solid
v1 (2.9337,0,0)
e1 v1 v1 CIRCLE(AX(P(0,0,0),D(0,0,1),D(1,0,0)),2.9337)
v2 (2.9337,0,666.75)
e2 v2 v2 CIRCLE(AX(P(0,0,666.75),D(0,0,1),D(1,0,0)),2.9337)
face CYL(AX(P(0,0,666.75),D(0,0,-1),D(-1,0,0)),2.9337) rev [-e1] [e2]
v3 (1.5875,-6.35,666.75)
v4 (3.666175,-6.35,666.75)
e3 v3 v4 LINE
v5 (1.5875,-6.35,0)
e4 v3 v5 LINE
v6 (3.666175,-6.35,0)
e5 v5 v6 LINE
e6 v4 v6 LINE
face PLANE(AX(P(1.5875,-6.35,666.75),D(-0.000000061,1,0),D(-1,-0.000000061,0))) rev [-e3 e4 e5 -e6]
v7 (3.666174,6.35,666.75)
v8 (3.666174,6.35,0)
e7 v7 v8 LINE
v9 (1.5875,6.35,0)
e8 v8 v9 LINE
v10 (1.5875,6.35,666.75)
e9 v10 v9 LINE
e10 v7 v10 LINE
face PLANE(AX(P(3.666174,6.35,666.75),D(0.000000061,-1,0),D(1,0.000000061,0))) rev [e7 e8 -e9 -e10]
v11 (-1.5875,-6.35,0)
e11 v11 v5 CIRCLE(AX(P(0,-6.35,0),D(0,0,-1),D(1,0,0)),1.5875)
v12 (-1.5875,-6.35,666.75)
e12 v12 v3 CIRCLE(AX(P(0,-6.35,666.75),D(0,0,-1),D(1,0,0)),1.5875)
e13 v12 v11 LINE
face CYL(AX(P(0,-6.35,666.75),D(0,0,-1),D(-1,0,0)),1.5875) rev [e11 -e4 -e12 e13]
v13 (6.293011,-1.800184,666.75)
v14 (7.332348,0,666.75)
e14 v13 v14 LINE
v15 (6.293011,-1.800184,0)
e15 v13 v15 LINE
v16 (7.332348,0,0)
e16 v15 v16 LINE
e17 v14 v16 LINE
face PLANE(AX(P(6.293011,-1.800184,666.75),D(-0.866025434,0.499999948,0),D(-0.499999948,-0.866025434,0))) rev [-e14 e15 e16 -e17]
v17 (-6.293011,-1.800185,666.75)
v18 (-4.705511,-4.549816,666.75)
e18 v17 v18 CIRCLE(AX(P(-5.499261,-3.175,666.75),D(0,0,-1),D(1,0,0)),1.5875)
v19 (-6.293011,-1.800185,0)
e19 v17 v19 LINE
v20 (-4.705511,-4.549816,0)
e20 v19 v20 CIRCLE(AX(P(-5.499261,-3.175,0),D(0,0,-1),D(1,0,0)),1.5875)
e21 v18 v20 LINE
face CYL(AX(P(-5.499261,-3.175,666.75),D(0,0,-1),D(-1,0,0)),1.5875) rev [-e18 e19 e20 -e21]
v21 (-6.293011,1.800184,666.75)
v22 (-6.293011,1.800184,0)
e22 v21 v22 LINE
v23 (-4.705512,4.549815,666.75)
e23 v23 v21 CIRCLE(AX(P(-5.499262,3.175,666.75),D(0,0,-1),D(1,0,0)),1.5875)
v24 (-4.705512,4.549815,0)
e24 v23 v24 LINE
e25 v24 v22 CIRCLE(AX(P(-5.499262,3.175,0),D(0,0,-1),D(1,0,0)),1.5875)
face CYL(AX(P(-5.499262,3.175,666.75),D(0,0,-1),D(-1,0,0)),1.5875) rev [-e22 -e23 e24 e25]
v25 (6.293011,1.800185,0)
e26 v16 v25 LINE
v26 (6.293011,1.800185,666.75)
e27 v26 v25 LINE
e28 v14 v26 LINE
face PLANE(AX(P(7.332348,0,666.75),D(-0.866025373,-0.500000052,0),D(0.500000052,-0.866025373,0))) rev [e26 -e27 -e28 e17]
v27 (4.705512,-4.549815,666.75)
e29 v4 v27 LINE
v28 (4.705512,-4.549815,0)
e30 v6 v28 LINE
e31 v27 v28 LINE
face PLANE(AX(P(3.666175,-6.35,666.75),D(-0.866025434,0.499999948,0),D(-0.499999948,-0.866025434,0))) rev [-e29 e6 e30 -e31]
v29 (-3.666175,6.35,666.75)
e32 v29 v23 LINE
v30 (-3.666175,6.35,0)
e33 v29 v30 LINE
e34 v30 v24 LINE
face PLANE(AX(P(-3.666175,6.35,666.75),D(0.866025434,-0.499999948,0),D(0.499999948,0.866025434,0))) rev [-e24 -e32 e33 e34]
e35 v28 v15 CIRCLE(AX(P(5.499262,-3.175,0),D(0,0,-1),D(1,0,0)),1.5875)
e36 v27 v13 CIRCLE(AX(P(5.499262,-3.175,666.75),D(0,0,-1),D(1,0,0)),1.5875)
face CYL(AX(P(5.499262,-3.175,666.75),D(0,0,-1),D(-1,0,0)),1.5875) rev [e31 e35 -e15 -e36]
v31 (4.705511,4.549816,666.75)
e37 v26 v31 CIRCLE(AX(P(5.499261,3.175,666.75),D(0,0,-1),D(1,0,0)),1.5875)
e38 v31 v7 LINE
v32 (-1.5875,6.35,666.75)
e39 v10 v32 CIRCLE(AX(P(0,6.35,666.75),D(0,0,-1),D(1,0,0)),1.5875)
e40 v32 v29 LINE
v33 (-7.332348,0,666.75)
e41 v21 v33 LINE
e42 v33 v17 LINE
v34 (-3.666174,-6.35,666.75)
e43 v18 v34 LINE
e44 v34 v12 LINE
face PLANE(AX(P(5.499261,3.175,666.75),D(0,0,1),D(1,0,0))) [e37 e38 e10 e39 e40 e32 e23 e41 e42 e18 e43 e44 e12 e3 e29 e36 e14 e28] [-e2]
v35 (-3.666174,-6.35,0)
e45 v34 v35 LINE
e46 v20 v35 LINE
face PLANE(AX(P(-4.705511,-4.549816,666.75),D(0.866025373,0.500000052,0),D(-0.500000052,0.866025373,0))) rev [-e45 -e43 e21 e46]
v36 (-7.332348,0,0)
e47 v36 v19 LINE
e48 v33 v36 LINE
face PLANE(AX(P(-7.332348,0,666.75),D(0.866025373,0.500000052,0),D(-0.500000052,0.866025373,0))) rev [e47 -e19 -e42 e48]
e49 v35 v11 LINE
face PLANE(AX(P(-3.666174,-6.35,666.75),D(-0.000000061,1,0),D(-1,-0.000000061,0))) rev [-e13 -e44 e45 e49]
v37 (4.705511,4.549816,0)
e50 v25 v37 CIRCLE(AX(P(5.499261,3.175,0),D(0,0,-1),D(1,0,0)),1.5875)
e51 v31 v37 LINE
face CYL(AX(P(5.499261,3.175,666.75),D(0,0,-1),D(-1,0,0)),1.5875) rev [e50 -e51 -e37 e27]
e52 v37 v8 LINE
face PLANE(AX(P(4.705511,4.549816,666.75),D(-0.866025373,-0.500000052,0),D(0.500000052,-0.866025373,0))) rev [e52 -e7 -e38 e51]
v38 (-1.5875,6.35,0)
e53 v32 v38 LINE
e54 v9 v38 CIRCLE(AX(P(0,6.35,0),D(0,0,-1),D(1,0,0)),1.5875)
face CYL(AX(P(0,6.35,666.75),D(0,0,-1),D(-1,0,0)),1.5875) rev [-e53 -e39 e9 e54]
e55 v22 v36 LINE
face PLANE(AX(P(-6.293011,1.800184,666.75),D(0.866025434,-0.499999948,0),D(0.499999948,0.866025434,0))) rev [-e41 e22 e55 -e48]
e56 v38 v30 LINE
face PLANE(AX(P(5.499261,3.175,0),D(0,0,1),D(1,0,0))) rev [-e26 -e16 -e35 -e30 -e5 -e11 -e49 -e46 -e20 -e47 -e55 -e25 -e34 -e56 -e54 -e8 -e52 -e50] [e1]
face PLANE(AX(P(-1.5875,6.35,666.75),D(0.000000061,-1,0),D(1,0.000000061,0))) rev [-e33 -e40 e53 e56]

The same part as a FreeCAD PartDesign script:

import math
import FreeCAD as App
import Part
import Sketcher
Q = App.Units.Quantity

doc = App.newDocument("Part")
body = doc.addObject("PartDesign::Body", "Body")

# Sketch on XY plane
sketch1 = doc.addObject("Sketcher::SketchObject", "Sketch")
body.addObject(sketch1)
sketch1.AttachmentSupport = (doc.XY_Plane, [""])
sketch1.MapMode = "FlatFace"
sketch1.addGeometry(Part.LineSegment(App.Vector(-1.6, 6.3, 0), App.Vector(-3.7, 6.3, 0)), False)
sketch1.addGeometry(Part.LineSegment(App.Vector(-3.7, 6.3, 0), App.Vector(-4.7, 4.5, 0)), False)
sketch1.addGeometry(Part.ArcOfCircle(Part.Circle(App.Vector(-5.5, 3.2, 0), App.Vector(0, 0, 1), 1.6), math.radians(-120), math.radians(60)), False)
sketch1.addGeometry(Part.LineSegment(App.Vector(-6.3, 1.8, 0), App.Vector(-7.3, 0, 0)), False)
sketch1.addGeometry(Part.LineSegment(App.Vector(-7.3, 0, 0), App.Vector(-6.3, -1.8, 0)), False)
sketch1.addGeometry(Part.ArcOfCircle(Part.Circle(App.Vector(-5.5, -3.2, 0), App.Vector(0, 0, 1), 1.6), math.radians(-60), math.radians(120)), False)
sketch1.addGeometry(Part.LineSegment(App.Vector(-4.7, -4.5, 0), App.Vector(-3.7, -6.4, 0)), False)
sketch1.addGeometry(Part.LineSegment(App.Vector(-3.7, -6.4, 0), App.Vector(-1.6, -6.4, 0)), False)
sketch1.addGeometry(Part.ArcOfCircle(Part.Circle(App.Vector(0, -6.3, 0), App.Vector(0, 0, 1), 1.6), math.radians(0), math.radians(180)), False)
sketch1.addGeometry(Part.LineSegment(App.Vector(1.6, -6.3, 0), App.Vector(3.7, -6.3, 0)), False)
sketch1.addGeometry(Part.LineSegment(App.Vector(3.7, -6.3, 0), App.Vector(4.7, -4.5, 0)), False)
sketch1.addGeometry(Part.ArcOfCircle(Part.Circle(App.Vector(5.5, -3.2, 0), App.Vector(0, 0, 1), 1.6), math.radians(60), math.radians(240)), False)
sketch1.addGeometry(Part.LineSegment(App.Vector(6.3, -1.8, 0), App.Vector(7.3, 0, 0)), False)
sketch1.addGeometry(Part.LineSegment(App.Vector(7.3, 0, 0), App.Vector(6.3, 1.8, 0)), False)
sketch1.addGeometry(Part.ArcOfCircle(Part.Circle(App.Vector(5.5, 3.2, 0), App.Vector(0, 0, 1), 1.6), math.radians(120), math.radians(300)), False)
sketch1.addGeometry(Part.LineSegment(App.Vector(4.7, 4.5, 0), App.Vector(3.7, 6.4, 0)), False)
sketch1.addGeometry(Part.LineSegment(App.Vector(3.7, 6.4, 0), App.Vector(1.6, 6.4, 0)), False)
sketch1.addGeometry(Part.ArcOfCircle(Part.Circle(App.Vector(0, 6.3, 0), App.Vector(0, 0, 1), 1.6), math.radians(-180), math.radians(0)), False)
sketch1.addGeometry(Part.Circle(App.Vector(0, 0, 0), App.Vector(0, 0, 1), 2.9), False)
sketch1.addConstraint(Sketcher.Constraint("Coincident", 0, 2, 1, 1))
sketch1.addConstraint(Sketcher.Constraint("Coincident", 1, 2, 2, 2))
sketch1.addConstraint(Sketcher.Constraint("Coincident", 2, 1, 3, 1))
sketch1.addConstraint(Sketcher.Constraint("Coincident", 3, 2, 4, 1))
sketch1.addConstraint(Sketcher.Constraint("Coincident", 4, 2, 5, 2))
sketch1.addConstraint(Sketcher.Constraint("Coincident", 5, 1, 6, 1))
sketch1.addConstraint(Sketcher.Constraint("Coincident", 6, 2, 7, 1))
sketch1.addConstraint(Sketcher.Constraint("Coincident", 7, 2, 8, 2))
sketch1.addConstraint(Sketcher.Constraint("Coincident", 8, 1, 9, 1))
sketch1.addConstraint(Sketcher.Constraint("Coincident", 9, 2, 10, 1))
sketch1.addConstraint(Sketcher.Constraint("Coincident", 10, 2, 11, 2))
sketch1.addConstraint(Sketcher.Constraint("Coincident", 11, 1, 12, 1))
sketch1.addConstraint(Sketcher.Constraint("Coincident", 12, 2, 13, 1))
sketch1.addConstraint(Sketcher.Constraint("Coincident", 13, 2, 14, 2))
sketch1.addConstraint(Sketcher.Constraint("Coincident", 14, 1, 15, 1))
sketch1.addConstraint(Sketcher.Constraint("Coincident", 15, 2, 16, 1))
sketch1.addConstraint(Sketcher.Constraint("Coincident", 16, 2, 17, 2))
sketch1.addConstraint(Sketcher.Constraint("Coincident", 17, 1, 0, 1))
sketch1.addConstraint(Sketcher.Constraint("Horizontal", 0))
sketch1.addConstraint(Sketcher.Constraint("Horizontal", 7))
sketch1.addConstraint(Sketcher.Constraint("Horizontal", 9))
sketch1.addConstraint(Sketcher.Constraint("Horizontal", 16))
sketch1.addConstraint(Sketcher.Constraint("Coincident", 18, 3, -1, 1))
sketch1.addConstraint(Sketcher.Constraint("Equal", 2, 5))
sketch1.addConstraint(Sketcher.Constraint("Equal", 5, 8))
sketch1.addConstraint(Sketcher.Constraint("Equal", 8, 11))
sketch1.addConstraint(Sketcher.Constraint("Equal", 11, 14))
sketch1.addConstraint(Sketcher.Constraint("Equal", 14, 17))
sketch1.addConstraint(Sketcher.Constraint("Symmetric", 2, 3, 11, 3, -1, 1))
sketch1.addConstraint(Sketcher.Constraint("Symmetric", 5, 3, 14, 3, -1, 1))
sketch1.addConstraint(Sketcher.Constraint("Symmetric", 8, 3, 17, 3, -1, 1))
sketch1.addConstraint(Sketcher.Constraint("Symmetric", 0, 2, 9, 2, -1, 1))
sketch1.addConstraint(Sketcher.Constraint("Symmetric", 3, 2, 12, 2, -1, 1))
sketch1.addConstraint(Sketcher.Constraint("Symmetric", 6, 2, 15, 2, -1, 1))
sketch1.addConstraint(Sketcher.Constraint("Symmetric", 5, 3, 11, 3, -2))
sketch1.addConstraint(Sketcher.Constraint("Symmetric", 7, 2, 8, 1, -2))
sketch1.addConstraint(Sketcher.Constraint("PointOnObject", 3, 2, -1))
sketch1.addConstraint(Sketcher.Constraint("Parallel", 1, 3))
sketch1.addConstraint(Sketcher.Constraint("Parallel", 4, 6))
sketch1.addConstraint(Sketcher.Constraint("Parallel", 3, 10))
sketch1.addConstraint(Sketcher.Constraint("Parallel", 10, 12))
sketch1.addConstraint(Sketcher.Constraint("Parallel", 6, 13))
sketch1.addConstraint(Sketcher.Constraint("Parallel", 13, 15))
sketch1.addConstraint(Sketcher.Constraint("Horizontal", 17, 3, 0, 2))
sketch1.addConstraint(Sketcher.Constraint("Horizontal", 5, 1, 10, 2))
sketch1.addConstraint(Sketcher.Constraint("Horizontal", 4, 2, 11, 1))
sketch1.addConstraint(Sketcher.Constraint("Equal", 1, 3))
sketch1.addConstraint(Sketcher.Constraint("Diameter", 18, Q("0.231 in")))
sketch1.addConstraint(Sketcher.Constraint("Angle", 1, Q("-119.999997 deg")))
sketch1.addConstraint(Sketcher.Constraint("Radius", 2, Q("0.0625 in")))
sketch1.addConstraint(Sketcher.Constraint("DistanceY", 8, 3, 17, 3, Q("0.5 in")))
sketch1.addConstraint(Sketcher.Constraint("DistanceY", 5, 3, 2, 3, Q("0.25 in")))
sketch1.addConstraint(Sketcher.Constraint("DistanceX", 2, 3, 1, 2, Q("0.03125 in")))
sketch1.addConstraint(Sketcher.Constraint("DistanceX", 0, 2, 0, 1, Q("2.078674 mm")))
pad1 = doc.addObject("PartDesign::Pad", "Pad")
body.addObject(pad1)
pad1.Profile = sketch1
pad1.Length = Q("26.25 in")

doc.recompute()
